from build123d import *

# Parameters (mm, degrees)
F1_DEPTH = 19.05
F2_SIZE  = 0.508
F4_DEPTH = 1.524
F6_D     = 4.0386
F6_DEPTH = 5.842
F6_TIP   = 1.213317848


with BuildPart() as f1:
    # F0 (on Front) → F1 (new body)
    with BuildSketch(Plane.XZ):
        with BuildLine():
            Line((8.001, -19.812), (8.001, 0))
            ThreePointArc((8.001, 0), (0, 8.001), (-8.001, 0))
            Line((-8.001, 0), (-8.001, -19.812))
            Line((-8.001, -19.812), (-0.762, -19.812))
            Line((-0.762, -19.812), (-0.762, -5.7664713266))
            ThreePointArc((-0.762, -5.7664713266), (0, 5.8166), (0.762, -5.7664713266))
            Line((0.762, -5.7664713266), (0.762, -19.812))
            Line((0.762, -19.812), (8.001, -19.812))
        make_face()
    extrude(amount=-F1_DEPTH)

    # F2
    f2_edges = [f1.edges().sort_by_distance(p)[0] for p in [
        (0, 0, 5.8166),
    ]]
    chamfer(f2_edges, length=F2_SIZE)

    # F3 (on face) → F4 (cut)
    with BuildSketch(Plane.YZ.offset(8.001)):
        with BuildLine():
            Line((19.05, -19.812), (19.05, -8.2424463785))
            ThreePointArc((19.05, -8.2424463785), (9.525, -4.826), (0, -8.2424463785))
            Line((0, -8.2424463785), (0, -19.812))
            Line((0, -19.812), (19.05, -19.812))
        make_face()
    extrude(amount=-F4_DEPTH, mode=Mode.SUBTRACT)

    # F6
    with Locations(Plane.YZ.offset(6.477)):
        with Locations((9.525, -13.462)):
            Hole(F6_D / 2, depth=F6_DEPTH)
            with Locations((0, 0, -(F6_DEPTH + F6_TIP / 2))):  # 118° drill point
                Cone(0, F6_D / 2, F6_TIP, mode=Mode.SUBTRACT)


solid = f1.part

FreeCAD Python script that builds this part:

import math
import FreeCAD as App
import Part
import Sketcher
from FreeCAD import Vector
Q = App.Units.Quantity


def edges_at(feature, points):
    """Names of the edges that pass closest to the given points."""
    edges = feature.Shape.Edges
    near = lambda p: min(range(len(edges)), key=lambda i: edges[i].distToShape(Part.Vertex(*p))[0])
    return sorted({f"Edge{near(p) + 1}" for p in points})

doc = App.newDocument("Part")
body = doc.addObject("PartDesign::Body", "Body")

# Sketch on XZ plane
sketch1 = body.newObject("Sketcher::SketchObject", "Sketch")
sketch1.AttachmentSupport = (doc.getObject("XZ_Plane"), [""])
sketch1.MapMode = "FlatFace"
sketch1.addGeometry(Part.LineSegment(Vector(8, -19.8, 0), Vector(8, 0, 0)), False)
sketch1.addGeometry(Part.ArcOfCircle(Part.Circle(Vector(0, 0, 0), Vector(0, 0, 1), 8), math.radians(0), math.radians(180)), False)
sketch1.addGeometry(Part.LineSegment(Vector(-8, 0, 0), Vector(-8, -19.8, 0)), False)
sketch1.addGeometry(Part.LineSegment(Vector(-8, -19.8, 0), Vector(-0.8, -19.8, 0)), False)
sketch1.addGeometry(Part.LineSegment(Vector(-0.8, -19.8, 0), Vector(-0.8, -5.8, 0)), False)
sketch1.addGeometry(Part.ArcOfCircle(Part.Circle(Vector(0, 0, 0), Vector(0, 0, 1), 5.8), math.radians(-82), math.radians(262)), False)
sketch1.addGeometry(Part.LineSegment(Vector(0.8, -5.8, 0), Vector(0.8, -19.8, 0)), False)
sketch1.addGeometry(Part.LineSegment(Vector(0.8, -19.8, 0), Vector(8, -19.8, 0)), False)
sketch1.addConstraint(Sketcher.Constraint("Tangent", 0, 2, 1, 1))
sketch1.addConstraint(Sketcher.Constraint("Tangent", 1, 2, 2, 1))
sketch1.addConstraint(Sketcher.Constraint("Coincident", 2, 2, 3, 1))
sketch1.addConstraint(Sketcher.Constraint("Coincident", 3, 2, 4, 1))
sketch1.addConstraint(Sketcher.Constraint("Coincident", 4, 2, 5, 2))
sketch1.addConstraint(Sketcher.Constraint("Coincident", 5, 1, 6, 1))
sketch1.addConstraint(Sketcher.Constraint("Coincident", 6, 2, 7, 1))
sketch1.addConstraint(Sketcher.Constraint("Coincident", 7, 2, 0, 1))
sketch1.addConstraint(Sketcher.Constraint("Vertical", 0))
sketch1.addConstraint(Sketcher.Constraint("Vertical", 2))
sketch1.addConstraint(Sketcher.Constraint("Horizontal", 3))
sketch1.addConstraint(Sketcher.Constraint("Vertical", 4))
sketch1.addConstraint(Sketcher.Constraint("Vertical", 6))
sketch1.addConstraint(Sketcher.Constraint("Horizontal", 7))
sketch1.addConstraint(Sketcher.Constraint("Coincident", 1, 3, -1, 1))
sketch1.addConstraint(Sketcher.Constraint("Coincident", 5, 3, -1, 1))
sketch1.addConstraint(Sketcher.Constraint("Symmetric", 3, 2, 6, 2, -2))
sketch1.addConstraint(Sketcher.Constraint("Radius", 1, Q("0.315 in")))
sketch1.addConstraint(Sketcher.Constraint("Radius", 5, Q("0.229 in")))
sketch1.addConstraint(Sketcher.Constraint("DistanceY", 0, 1, 0, 2, Q("0.78 in")))
sketch1.addConstraint(Sketcher.Constraint("DistanceX", 3, 1, 3, 2, Q("0.285 in")))
pad1 = body.newObject("PartDesign::Pad", "Pad")
pad1.Profile = sketch1
pad1.Length = Q("0.75 in")
pad1.Reversed = True
doc.recompute()

chamfer = body.newObject("PartDesign::Chamfer", "Chamfer")
chamfer.Base = (pad1, edges_at(pad1, [(0, 0, 5.817)]))
chamfer.Size = Q("0.02 in")

# Sketch on YZ plane
sketch2 = body.newObject("Sketcher::SketchObject", "Sketch001")
sketch2.AttachmentSupport = (doc.getObject("YZ_Plane"), [""])
sketch2.MapMode = "FlatFace"
sketch2.AttachmentOffset = App.Placement(Vector(0, 0, 0.315 * 25.4), App.Rotation())
sketch2.addGeometry(Part.LineSegment(Vector(19, -20, 0), Vector(19, -8, 0)), False)
sketch2.addGeometry(Part.ArcOfCircle(Part.Circle(Vector(10, -20, 0), Vector(0, 0, 1), 15), math.radians(51), math.radians(129)), False)
sketch2.addGeometry(Part.LineSegment(Vector(0, -8, 0), Vector(0, -20, 0)), False)
sketch2.addGeometry(Part.LineSegment(Vector(0, -20, 0), Vector(19, -20, 0)), False)
sketch2.addConstraint(Sketcher.Constraint("Coincident", 0, 2, 1, 1))
sketch2.addConstraint(Sketcher.Constraint("Coincident", 1, 2, 2, 1))
sketch2.addConstraint(Sketcher.Constraint("Coincident", 2, 2, 3, 1))
sketch2.addConstraint(Sketcher.Constraint("Coincident", 3, 2, 0, 1))
sketch2.addConstraint(Sketcher.Constraint("Vertical", 0))
sketch2.addConstraint(Sketcher.Constraint("Vertical", 2))
sketch2.addConstraint(Sketcher.Constraint("Horizontal", 3))
sketch2.addConstraint(Sketcher.Constraint("PointOnObject", 1, 2, -2))
sketch2.addConstraint(Sketcher.Constraint("Horizontal", 0, 2, 1, 2))
sketch2.addConstraint(Sketcher.Constraint("Horizontal", 1, 3, 2, 2))
sketch2.addConstraint(Sketcher.Constraint("Radius", 1, Q("0.59 in")))
sketch2.addConstraint(Sketcher.Constraint("DistanceX", 3, 1, 3, 2, Q("0.75 in")))
sketch2.addConstraint(Sketcher.Constraint("DistanceY", 1, 3, -1, 1, Q("0.78 in")))
pocket1 = body.newObject("PartDesign::Pocket", "Pocket")
pocket1.Profile = sketch2
pocket1.Length = Q("0.06 in")

# Sketch on YZ plane
sketch3 = body.newObject("Sketcher::SketchObject", "Sketch002")
sketch3.AttachmentSupport = (doc.getObject("YZ_Plane"), [""])
sketch3.MapMode = "FlatFace"
sketch3.AttachmentOffset = App.Placement(Vector(0, 0, 0.255 * 25.4), App.Rotation())
sketch3.addGeometry(Part.Circle(Vector(9.5, -13.5, 0), Vector(0, 0, 1), 2), False)
sketch3.addConstraint(Sketcher.Constraint("Diameter", 0, Q("0.159 in")))
sketch3.addConstraint(Sketcher.Constraint("DistanceY", 0, 3, -1, 1, Q("0.53 in")))
sketch3.addConstraint(Sketcher.Constraint("DistanceX", -1, 1, 0, 3, Q("0.375 in")))
doc.recompute()
hole = body.newObject("PartDesign::Hole", "Hole")
hole.Profile = sketch3
hole.ThreadType = "None"
hole.Diameter = Q("0.159 in")
hole.DepthType = "Dimension"
hole.Depth = Q("0.23 in")
hole.DrillPoint = "Angled"
hole.DrillPointAngle = 118

doc.recompute()
